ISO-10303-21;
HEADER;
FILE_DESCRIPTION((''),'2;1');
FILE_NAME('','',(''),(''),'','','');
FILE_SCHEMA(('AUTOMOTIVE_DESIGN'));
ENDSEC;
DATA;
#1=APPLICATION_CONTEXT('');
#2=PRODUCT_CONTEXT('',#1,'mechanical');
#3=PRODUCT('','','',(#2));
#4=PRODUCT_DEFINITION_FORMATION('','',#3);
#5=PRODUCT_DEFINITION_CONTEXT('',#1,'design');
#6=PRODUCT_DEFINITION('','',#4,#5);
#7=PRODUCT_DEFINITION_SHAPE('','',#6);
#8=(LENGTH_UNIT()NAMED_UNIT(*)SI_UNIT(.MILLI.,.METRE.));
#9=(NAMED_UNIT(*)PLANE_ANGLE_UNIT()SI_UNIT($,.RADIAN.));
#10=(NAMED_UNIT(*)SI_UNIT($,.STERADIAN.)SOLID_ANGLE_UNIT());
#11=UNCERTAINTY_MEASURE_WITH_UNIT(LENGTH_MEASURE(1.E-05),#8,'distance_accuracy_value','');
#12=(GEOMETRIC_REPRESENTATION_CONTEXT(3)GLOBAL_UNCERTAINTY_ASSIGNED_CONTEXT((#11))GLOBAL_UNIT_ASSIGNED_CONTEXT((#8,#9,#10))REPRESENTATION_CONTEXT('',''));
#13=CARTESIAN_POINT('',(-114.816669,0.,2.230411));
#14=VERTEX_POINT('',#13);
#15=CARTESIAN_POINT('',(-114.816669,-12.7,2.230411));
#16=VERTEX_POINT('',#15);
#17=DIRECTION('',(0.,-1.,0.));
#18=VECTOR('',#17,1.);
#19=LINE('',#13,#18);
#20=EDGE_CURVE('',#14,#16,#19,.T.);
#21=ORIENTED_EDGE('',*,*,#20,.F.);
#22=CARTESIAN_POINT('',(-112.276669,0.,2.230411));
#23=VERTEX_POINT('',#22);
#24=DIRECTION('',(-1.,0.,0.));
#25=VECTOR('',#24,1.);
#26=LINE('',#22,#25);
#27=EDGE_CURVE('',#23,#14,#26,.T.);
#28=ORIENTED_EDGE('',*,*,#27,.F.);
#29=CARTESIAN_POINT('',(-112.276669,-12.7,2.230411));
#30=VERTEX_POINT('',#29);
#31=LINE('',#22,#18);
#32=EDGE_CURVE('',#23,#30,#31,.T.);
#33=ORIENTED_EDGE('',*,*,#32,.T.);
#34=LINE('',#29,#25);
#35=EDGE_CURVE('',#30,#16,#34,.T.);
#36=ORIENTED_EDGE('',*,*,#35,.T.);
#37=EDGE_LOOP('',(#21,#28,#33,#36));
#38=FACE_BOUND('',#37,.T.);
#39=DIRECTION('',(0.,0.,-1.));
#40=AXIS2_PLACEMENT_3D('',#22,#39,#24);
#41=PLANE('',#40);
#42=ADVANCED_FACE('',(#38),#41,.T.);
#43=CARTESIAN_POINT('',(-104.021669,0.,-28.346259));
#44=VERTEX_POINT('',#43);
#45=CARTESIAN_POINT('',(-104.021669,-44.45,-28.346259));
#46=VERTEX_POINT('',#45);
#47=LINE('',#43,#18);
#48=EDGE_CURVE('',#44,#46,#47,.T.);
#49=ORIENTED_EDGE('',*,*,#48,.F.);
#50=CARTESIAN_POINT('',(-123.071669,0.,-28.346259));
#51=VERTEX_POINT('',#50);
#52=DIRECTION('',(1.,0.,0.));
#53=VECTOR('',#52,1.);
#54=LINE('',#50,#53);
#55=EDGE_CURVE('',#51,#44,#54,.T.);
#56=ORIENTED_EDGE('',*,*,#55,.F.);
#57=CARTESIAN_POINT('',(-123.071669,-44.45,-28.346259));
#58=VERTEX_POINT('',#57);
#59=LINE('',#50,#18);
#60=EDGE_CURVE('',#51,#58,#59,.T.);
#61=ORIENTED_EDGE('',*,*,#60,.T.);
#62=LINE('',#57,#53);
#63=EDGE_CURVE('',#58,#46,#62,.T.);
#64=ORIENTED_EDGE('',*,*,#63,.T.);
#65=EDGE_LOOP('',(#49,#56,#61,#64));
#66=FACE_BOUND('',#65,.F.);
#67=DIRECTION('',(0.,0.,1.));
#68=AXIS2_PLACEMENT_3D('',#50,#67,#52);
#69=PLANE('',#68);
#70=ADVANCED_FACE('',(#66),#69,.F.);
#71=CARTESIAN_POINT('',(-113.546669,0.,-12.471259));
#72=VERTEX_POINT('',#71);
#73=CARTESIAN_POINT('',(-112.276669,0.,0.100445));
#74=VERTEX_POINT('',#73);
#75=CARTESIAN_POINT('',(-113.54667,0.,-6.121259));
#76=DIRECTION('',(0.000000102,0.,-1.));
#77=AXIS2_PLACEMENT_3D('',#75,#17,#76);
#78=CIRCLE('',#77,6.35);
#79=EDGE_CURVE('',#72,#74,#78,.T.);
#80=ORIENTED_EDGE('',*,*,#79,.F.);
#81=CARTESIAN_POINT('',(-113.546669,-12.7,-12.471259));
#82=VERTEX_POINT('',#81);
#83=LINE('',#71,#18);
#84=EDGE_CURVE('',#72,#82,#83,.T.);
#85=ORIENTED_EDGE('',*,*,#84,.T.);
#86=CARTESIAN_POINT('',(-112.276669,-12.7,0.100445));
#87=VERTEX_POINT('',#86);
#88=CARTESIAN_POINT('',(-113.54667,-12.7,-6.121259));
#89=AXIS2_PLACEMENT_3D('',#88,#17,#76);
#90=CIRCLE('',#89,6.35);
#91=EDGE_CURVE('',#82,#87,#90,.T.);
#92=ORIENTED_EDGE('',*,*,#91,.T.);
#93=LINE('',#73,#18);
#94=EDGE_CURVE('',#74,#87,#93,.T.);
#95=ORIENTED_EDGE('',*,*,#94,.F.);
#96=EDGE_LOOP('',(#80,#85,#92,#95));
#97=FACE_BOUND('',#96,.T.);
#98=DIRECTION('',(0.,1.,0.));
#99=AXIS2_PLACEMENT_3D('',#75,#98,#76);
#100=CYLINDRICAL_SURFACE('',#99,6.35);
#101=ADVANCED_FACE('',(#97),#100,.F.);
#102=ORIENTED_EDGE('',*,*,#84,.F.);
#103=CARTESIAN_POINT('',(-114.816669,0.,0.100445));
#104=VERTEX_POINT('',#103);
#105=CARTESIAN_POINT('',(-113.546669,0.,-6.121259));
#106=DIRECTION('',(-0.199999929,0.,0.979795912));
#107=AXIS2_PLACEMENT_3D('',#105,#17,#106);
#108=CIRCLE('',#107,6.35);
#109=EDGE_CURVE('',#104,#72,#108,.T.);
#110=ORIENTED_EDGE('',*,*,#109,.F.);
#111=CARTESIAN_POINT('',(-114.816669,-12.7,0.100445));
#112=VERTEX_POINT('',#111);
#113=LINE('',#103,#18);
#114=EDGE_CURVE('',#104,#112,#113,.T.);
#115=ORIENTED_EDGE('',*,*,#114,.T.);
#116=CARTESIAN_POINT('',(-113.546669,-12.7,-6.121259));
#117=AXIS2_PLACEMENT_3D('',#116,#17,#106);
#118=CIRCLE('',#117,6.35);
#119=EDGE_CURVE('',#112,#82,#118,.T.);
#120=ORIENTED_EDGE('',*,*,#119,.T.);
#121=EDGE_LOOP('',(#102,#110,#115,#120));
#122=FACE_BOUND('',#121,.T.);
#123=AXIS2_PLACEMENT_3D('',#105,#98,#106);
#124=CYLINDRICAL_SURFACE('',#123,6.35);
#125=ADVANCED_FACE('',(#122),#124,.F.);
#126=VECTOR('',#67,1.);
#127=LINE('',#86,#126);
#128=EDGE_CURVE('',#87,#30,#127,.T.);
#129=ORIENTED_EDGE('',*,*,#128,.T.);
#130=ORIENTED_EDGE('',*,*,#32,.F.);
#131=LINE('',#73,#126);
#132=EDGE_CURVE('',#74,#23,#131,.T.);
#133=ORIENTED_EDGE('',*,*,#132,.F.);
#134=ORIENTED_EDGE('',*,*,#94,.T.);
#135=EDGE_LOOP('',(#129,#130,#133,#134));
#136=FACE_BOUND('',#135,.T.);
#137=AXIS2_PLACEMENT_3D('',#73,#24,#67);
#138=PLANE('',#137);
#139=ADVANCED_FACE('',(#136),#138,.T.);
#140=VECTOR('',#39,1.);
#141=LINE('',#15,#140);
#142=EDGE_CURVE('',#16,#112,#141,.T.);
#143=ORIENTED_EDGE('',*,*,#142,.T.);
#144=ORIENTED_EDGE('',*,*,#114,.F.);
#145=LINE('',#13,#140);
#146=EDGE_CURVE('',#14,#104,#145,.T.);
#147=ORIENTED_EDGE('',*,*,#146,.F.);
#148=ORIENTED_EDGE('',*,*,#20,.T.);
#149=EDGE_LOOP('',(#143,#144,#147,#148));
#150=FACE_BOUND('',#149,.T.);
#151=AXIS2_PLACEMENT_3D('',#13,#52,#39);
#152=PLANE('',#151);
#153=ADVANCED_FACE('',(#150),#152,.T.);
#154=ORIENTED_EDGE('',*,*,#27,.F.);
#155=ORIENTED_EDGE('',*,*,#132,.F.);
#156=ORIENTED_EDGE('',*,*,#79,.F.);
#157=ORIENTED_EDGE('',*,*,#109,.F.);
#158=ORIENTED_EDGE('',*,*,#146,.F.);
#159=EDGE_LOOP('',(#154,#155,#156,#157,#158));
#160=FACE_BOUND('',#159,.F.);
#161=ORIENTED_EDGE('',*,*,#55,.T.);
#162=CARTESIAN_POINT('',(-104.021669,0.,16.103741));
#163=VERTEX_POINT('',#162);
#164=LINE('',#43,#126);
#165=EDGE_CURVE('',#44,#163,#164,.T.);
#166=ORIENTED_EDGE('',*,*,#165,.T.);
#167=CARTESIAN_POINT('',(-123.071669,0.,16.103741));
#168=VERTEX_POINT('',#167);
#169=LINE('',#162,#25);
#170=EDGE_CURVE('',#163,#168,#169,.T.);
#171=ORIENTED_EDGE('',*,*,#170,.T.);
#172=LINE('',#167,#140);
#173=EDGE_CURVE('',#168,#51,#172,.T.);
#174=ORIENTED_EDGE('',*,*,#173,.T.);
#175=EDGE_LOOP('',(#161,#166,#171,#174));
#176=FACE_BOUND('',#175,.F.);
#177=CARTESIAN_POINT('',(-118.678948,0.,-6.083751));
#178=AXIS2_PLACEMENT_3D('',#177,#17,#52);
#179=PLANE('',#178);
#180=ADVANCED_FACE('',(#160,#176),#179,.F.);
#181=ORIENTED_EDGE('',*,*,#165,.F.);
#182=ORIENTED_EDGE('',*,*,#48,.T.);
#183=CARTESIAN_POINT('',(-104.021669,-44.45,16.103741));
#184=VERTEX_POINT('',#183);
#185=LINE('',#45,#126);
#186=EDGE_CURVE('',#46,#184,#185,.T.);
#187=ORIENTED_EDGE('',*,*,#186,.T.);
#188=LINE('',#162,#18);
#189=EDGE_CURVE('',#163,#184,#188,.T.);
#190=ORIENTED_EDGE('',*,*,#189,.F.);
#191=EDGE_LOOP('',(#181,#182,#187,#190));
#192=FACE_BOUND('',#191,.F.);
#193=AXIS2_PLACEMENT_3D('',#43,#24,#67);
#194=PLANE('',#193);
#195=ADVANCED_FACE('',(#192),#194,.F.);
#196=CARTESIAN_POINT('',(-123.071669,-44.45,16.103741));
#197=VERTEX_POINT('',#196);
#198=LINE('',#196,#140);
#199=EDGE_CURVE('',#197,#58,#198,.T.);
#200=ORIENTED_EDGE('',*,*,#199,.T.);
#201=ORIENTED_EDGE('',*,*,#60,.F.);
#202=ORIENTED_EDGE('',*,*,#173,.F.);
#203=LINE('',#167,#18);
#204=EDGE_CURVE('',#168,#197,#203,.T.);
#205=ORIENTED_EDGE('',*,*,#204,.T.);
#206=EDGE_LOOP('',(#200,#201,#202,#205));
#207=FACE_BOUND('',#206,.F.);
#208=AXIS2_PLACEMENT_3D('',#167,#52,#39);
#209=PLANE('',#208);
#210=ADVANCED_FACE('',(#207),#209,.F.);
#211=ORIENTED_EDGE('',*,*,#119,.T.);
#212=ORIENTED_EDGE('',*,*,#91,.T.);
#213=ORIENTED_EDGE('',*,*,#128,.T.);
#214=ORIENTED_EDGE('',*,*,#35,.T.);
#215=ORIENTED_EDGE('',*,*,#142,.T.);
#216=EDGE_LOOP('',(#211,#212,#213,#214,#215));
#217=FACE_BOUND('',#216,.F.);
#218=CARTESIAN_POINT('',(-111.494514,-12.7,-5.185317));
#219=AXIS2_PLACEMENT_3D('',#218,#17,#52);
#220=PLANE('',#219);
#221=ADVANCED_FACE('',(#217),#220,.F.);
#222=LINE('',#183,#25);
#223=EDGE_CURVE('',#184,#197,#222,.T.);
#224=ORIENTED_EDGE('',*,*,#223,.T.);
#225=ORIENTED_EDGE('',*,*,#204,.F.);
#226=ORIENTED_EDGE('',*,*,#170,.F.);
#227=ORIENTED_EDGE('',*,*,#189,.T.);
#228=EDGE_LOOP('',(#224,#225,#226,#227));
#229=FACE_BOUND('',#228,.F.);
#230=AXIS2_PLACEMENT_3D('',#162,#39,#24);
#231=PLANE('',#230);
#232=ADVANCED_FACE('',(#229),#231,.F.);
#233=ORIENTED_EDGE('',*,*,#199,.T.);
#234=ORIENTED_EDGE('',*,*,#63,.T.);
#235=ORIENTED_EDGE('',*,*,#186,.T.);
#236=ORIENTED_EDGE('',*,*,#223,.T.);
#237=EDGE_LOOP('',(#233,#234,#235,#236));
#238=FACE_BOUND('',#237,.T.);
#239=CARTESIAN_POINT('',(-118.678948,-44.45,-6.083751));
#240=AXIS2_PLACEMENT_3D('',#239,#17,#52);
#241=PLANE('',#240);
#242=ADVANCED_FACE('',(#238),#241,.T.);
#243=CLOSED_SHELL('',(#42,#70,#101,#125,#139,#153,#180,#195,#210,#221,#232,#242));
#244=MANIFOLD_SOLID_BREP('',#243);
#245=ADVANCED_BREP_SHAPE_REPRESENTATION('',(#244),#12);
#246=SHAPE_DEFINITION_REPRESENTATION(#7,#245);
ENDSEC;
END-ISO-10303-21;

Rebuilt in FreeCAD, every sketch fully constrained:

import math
import FreeCAD as App
import Part
import Sketcher
from FreeCAD import Vector
Q = App.Units.Quantity

doc = App.newDocument("Part")
body = doc.addObject("PartDesign::Body", "Body")

# Sketch on XZ plane
sketch1 = body.newObject("Sketcher::SketchObject", "Sketch")
sketch1.AttachmentSupport = (doc.getObject("XZ_Plane"), [""])
sketch1.MapMode = "FlatFace"
sketch1.addGeometry([
    Part.LineSegment(Vector(-123, 16, 0), Vector(-123, -28, 0)),
    Part.LineSegment(Vector(-123, -28, 0), Vector(-104, -28, 0)),
    Part.LineSegment(Vector(-104, -28, 0), Vector(-104, 16, 0)),
    Part.LineSegment(Vector(-104, 16, 0), Vector(-123, 16, 0)),
], False)
sketch1.addConstraint([
    Sketcher.Constraint("Coincident", 0, 2, 1, 1),
    Sketcher.Constraint("Coincident", 1, 2, 2, 1),
    Sketcher.Constraint("Coincident", 2, 2, 3, 1),
    Sketcher.Constraint("Coincident", 3, 2, 0, 1),
    Sketcher.Constraint("Vertical", 0),
    Sketcher.Constraint("Horizontal", 1),
    Sketcher.Constraint("Vertical", 2),
    Sketcher.Constraint("Horizontal", 3),
    Sketcher.Constraint("DistanceX", 1, 1, 1, 2, Q("0.75 in")),
    Sketcher.Constraint("DistanceY", 0, 2, 0, 1, Q("1.75 in")),
    Sketcher.Constraint("DistanceX", 0, 2, -1, 1, Q("123.071669 mm")),
    Sketcher.Constraint("DistanceY", 0, 2, -1, 1, Q("28.346259 mm")),
])
pad1 = body.newObject("PartDesign::Pad", "Pad")
pad1.Profile = sketch1
pad1.Length = Q("1.75 in")

# Sketch on XZ plane
sketch2 = body.newObject("Sketcher::SketchObject", "Sketch001")
sketch2.AttachmentSupport = (doc.getObject("XZ_Plane"), [""])
sketch2.MapMode = "FlatFace"
sketch2.addGeometry([
    Part.ArcOfCircle(Part.Circle(Vector(-113.5, -6.1, 0), Vector(0, 0, 1), 6.4), math.radians(-90), math.radians(78)),  # 0
    Part.LineSegment(Vector(-112.3, 0.1, 0), Vector(-112.3, 2.2, 0)),  # 1
    Part.LineSegment(Vector(-112.3, 2.2, 0), Vector(-114.8, 2.2, 0)),  # 2
    Part.LineSegment(Vector(-114.8, 2.2, 0), Vector(-114.8, 0.1, 0)),  # 3
    Part.ArcOfCircle(Part.Circle(Vector(-113.5, -6.1, 0), Vector(0, 0, 1), 6.3), math.radians(102), math.radians(270)),  # 4
], False)
sketch2.addConstraint([
    Sketcher.Constraint("Coincident", 0, 2, 1, 1),
    Sketcher.Constraint("Coincident", 1, 2, 2, 1),
    Sketcher.Constraint("Coincident", 2, 2, 3, 1),
    Sketcher.Constraint("Coincident", 3, 2, 4, 1),
    Sketcher.Constraint("Tangent", 4, 2, 0, 1),
    Sketcher.Constraint("Vertical", 1),
    Sketcher.Constraint("Horizontal", 2),
    Sketcher.Constraint("Vertical", 3),
    Sketcher.Constraint("Equal", 0, 4),
    Sketcher.Constraint("Horizontal", 0, 2, 3, 2),
    Sketcher.Constraint("Vertical", 0, 3, 4, 2),
    Sketcher.Constraint("Radius", 0, Q("0.25 in")),
    Sketcher.Constraint("DistanceX", 2, 2, 2, 1, Q("0.1 in")),
    Sketcher.Constraint("DistanceY", 1, 1, 1, 2, Q("2.129966 mm")),
    Sketcher.Constraint("DistanceX", 0, 3, -1, 1, Q("113.54667 mm")),
    Sketcher.Constraint("DistanceY", 0, 3, -1, 1, Q("6.121259 mm")),
])
pocket1 = body.newObject("PartDesign::Pocket", "Pocket")
pocket1.Profile = sketch2
pocket1.Length = Q("0.5 in")
pocket1.Reversed = True

doc.recompute()
